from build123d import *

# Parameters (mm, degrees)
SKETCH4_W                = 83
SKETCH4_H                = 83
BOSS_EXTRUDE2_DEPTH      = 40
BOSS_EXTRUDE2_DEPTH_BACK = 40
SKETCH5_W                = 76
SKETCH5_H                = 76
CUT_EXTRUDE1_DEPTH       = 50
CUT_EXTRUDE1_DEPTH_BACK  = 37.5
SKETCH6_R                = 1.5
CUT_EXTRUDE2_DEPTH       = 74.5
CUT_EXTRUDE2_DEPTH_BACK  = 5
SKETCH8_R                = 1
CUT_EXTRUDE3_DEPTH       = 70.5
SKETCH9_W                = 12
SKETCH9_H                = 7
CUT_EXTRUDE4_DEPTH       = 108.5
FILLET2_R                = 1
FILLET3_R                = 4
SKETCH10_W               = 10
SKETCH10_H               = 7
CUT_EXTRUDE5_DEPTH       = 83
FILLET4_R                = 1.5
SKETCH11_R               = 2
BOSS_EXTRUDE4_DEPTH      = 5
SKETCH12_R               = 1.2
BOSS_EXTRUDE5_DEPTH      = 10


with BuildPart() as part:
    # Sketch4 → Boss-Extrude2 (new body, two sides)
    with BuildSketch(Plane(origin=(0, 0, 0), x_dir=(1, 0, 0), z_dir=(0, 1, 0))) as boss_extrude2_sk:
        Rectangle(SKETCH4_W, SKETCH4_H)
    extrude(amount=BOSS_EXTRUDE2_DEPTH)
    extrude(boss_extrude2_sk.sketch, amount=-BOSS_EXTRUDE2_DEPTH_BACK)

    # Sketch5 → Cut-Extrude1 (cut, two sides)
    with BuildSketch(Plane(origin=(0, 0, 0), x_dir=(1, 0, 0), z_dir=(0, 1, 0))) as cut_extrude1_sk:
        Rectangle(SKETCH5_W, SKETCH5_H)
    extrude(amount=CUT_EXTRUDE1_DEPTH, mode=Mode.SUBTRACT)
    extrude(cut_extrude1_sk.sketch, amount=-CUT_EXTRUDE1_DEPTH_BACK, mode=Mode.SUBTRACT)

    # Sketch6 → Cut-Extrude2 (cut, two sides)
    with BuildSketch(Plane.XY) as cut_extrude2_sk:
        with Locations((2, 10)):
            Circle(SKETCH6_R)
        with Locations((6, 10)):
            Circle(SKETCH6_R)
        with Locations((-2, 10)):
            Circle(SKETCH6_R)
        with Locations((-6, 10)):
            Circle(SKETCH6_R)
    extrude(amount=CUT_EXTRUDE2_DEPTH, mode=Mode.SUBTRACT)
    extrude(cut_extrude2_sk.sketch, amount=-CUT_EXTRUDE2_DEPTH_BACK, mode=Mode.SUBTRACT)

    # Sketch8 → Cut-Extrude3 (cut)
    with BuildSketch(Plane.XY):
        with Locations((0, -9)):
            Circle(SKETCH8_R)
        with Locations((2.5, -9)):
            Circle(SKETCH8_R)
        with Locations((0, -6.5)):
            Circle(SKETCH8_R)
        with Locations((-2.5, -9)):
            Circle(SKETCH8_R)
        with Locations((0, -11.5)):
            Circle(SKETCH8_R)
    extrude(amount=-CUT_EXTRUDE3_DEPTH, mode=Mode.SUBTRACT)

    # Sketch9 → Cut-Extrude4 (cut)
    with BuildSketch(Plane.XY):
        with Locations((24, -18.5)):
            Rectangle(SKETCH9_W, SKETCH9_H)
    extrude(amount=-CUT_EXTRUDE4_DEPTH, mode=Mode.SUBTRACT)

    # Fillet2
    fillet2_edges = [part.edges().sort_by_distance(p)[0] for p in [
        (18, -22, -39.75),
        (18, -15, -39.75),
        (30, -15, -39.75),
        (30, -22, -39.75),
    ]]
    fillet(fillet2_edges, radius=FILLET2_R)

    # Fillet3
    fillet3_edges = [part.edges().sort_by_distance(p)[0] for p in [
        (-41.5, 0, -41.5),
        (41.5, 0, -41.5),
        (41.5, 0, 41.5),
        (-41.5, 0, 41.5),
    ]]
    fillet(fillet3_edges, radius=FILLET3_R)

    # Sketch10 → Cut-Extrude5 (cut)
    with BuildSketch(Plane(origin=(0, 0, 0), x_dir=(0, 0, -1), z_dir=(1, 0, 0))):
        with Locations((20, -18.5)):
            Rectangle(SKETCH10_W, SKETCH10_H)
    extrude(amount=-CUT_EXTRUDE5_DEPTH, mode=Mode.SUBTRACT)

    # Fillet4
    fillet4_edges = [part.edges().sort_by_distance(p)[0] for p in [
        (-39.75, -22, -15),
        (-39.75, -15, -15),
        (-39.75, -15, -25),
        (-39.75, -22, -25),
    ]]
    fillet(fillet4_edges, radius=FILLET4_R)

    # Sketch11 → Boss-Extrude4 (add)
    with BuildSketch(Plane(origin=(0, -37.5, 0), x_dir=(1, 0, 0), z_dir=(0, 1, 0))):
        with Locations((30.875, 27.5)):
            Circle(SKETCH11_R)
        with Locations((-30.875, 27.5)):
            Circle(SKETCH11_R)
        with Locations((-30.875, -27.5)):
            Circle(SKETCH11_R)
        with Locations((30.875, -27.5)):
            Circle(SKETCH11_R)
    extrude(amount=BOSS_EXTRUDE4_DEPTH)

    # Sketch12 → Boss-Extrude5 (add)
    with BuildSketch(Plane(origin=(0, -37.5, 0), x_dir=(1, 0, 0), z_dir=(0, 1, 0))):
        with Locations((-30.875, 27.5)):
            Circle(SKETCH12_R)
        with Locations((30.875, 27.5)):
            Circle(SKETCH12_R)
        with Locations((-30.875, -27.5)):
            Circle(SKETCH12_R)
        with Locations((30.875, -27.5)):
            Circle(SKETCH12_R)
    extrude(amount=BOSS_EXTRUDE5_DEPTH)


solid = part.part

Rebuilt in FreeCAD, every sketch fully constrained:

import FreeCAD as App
import Part
import Sketcher

V = App.Vector
Q = App.Units.Quantity


def edges_at(feature, points):
    """Names of the edges that pass closest to the given points."""
    edges = feature.Shape.Edges
    near = lambda p: min(range(len(edges)), key=lambda i: edges[i].distToShape(Part.Vertex(*p))[0])
    return sorted({f"Edge{near(p) + 1}" for p in points})


def add_polygon(sketch, points):
    """Adds a closed chain of lines whose ends are joined by coincident constraints."""
    first, n = sketch.GeometryCount, len(points)
    for a, b in zip(points, points[1:] + points[:1]):
        sketch.addGeometry(Part.LineSegment(App.Vector(*a, 0), App.Vector(*b, 0)), False)
    for i in range(n):
        sketch.addConstraint(Sketcher.Constraint("Coincident", first + i, 2, first + (i + 1) % n, 1))

doc = App.newDocument("Part")
params = doc.addObject("Spreadsheet::Sheet", "Params")
for row, (alias, value) in enumerate([
    ("sketch1_width", "83 mm"),
    ("pad1_length", "40 mm"),
    ("pad1_length2", "40 mm"),
    ("sketch2_width", "76 mm"),
    ("pocket1_length", "50 mm"),
    ("pocket1_length2", "37.5 mm"),
    ("sketch3_diameter", "3 mm"),
    ("pocket2_length", "74.5 mm"),
    ("pocket2_length2", "5 mm"),
    ("sketch4_diameter", "2 mm"),
    ("pocket3_length", "70.5 mm"),
    ("sketch5_width", "12 mm"),
    ("sketch5_height", "7 mm"),
    ("pocket4_length", "108.5 mm"),
    ("fillet_radius", "1 mm"),
    ("fillet2_radius", "4 mm"),
    ("sketch6_width", "7 mm"),
    ("sketch6_height", "10 mm"),
    ("pocket5_length", "83 mm"),
    ("fillet3_radius", "1.5 mm"),
    ("sketch7_diameter", "4 mm"),
    ("pad2_length", "5 mm"),
    ("sketch8_diameter", "2.4 mm"),
    ("pad3_length", "10 mm"),
], start=1):
    params.set(f"A{row}", alias)
    params.set(f"B{row}", "=" + value)
    params.setAlias(f"B{row}", alias)

body = doc.addObject("PartDesign::Body", "Body")

# Sketch on XZ plane
sketch1 = doc.addObject("Sketcher::SketchObject", "Sketch")
body.addObject(sketch1)
sketch1.AttachmentSupport = (doc.XZ_Plane, [""])
sketch1.MapMode = "FlatFace"
add_polygon(sketch1, [(-41.5, -41.5), (-41.5, 41.5), (41.5, 41.5), (41.5, -41.5)])  # lines 0-3
sketch1.addConstraint([
    Sketcher.Constraint("Vertical", 0),
    Sketcher.Constraint("Horizontal", 1),
    Sketcher.Constraint("Vertical", 2),
    Sketcher.Constraint("Horizontal", 3),
    Sketcher.Constraint("Symmetric", 0, 2, 2, 2, -1, 1),
    Sketcher.Constraint("Equal", 3, 0),
    Sketcher.Constraint("DistanceX", 1, 1, 1, 2, Q("83 mm")),
])
sketch1.setExpression("Constraints[10]", "Params.sketch1_width")
pad1 = doc.addObject("PartDesign::Pad", "Pad")
body.addObject(pad1)
pad1.Profile = sketch1
pad1.Type = "TwoLengths"
pad1.setExpression("Length", "Params.pad1_length")
pad1.setExpression("Length2", "Params.pad1_length2")
pad1.Reversed = True

# Sketch on XZ plane
sketch2 = doc.addObject("Sketcher::SketchObject", "Sketch001")
body.addObject(sketch2)
sketch2.AttachmentSupport = (doc.XZ_Plane, [""])
sketch2.MapMode = "FlatFace"
add_polygon(sketch2, [(-38, -38), (-38, 38), (38, 38), (38, -38)])  # lines 0-3
sketch2.addConstraint([
    Sketcher.Constraint("Vertical", 0),
    Sketcher.Constraint("Horizontal", 1),
    Sketcher.Constraint("Vertical", 2),
    Sketcher.Constraint("Horizontal", 3),
    Sketcher.Constraint("Symmetric", 0, 2, 2, 2, -1, 1),
    Sketcher.Constraint("Equal", 3, 0),
    Sketcher.Constraint("DistanceX", 1, 1, 1, 2, Q("76 mm")),
])
sketch2.setExpression("Constraints[10]", "Params.sketch2_width")
pocket1 = doc.addObject("PartDesign::Pocket", "Pocket")
body.addObject(pocket1)
pocket1.Profile = sketch2
pocket1.Type = "TwoLengths"
pocket1.setExpression("Length", "Params.pocket1_length")
pocket1.setExpression("Length2", "Params.pocket1_length2")

# Sketch on XY plane
sketch3 = doc.addObject("Sketcher::SketchObject", "Sketch002")
body.addObject(sketch3)
sketch3.AttachmentSupport = (doc.XY_Plane, [""])
sketch3.MapMode = "FlatFace"
sketch3.addGeometry([
    Part.Circle(V(2, 10, 0), V(0, 0, 1), 1.5),
    Part.Circle(V(6, 10, 0), V(0, 0, 1), 1.5),
    Part.Circle(V(-2, 10, 0), V(0, 0, 1), 1.5),
    Part.Circle(V(-6, 10, 0), V(0, 0, 1), 1.5),
], False)
sketch3.addConstraint([
    Sketcher.Constraint("Equal", 0, 1),
    Sketcher.Constraint("Equal", 1, 2),
    Sketcher.Constraint("Equal", 2, 3),
    Sketcher.Constraint("Symmetric", 0, 3, 2, 3, -2),
    Sketcher.Constraint("Symmetric", 1, 3, 3, 3, -2),
    Sketcher.Constraint("Horizontal", 0, 3, 1, 3),
    Sketcher.Constraint("Diameter", 0, Q("3 mm")),
    Sketcher.Constraint("DistanceX", -1, 1, 0, 3, Q("2 mm")),
    Sketcher.Constraint("DistanceY", -1, 1, 0, 3, Q("10 mm")),
    Sketcher.Constraint("DistanceX", -1, 1, 1, 3, Q("6 mm")),
])
sketch3.setExpression("Constraints[6]", "Params.sketch3_diameter")
pocket2 = doc.addObject("PartDesign::Pocket", "Pocket001")
body.addObject(pocket2)
pocket2.Profile = sketch3
pocket2.Type = "TwoLengths"
pocket2.setExpression("Length", "Params.pocket2_length")
pocket2.setExpression("Length2", "Params.pocket2_length2")
pocket2.Reversed = True

# Sketch on XY plane
sketch4 = doc.addObject("Sketcher::SketchObject", "Sketch003")
body.addObject(sketch4)
sketch4.AttachmentSupport = (doc.XY_Plane, [""])
sketch4.MapMode = "FlatFace"
sketch4.addGeometry([
    Part.Circle(V(0, -9, 0), V(0, 0, 1), 1),  # 0
    Part.Circle(V(2.5, -9, 0), V(0, 0, 1), 1),  # 1
    Part.Circle(V(0, -6.5, 0), V(0, 0, 1), 1),  # 2
    Part.Circle(V(-2.5, -9, 0), V(0, 0, 1), 1),  # 3
    Part.Circle(V(0, -11.5, 0), V(0, 0, 1), 1),  # 4
], False)
sketch4.addConstraint([
    Sketcher.Constraint("Equal", 0, 1),
    Sketcher.Constraint("Equal", 1, 2),
    Sketcher.Constraint("Equal", 2, 3),
    Sketcher.Constraint("Equal", 3, 4),
    Sketcher.Constraint("Symmetric", 1, 3, 3, 3, -2),
    Sketcher.Constraint("PointOnObject", 0, 3, -2),
    Sketcher.Constraint("PointOnObject", 2, 3, -2),
    Sketcher.Constraint("PointOnObject", 4, 3, -2),
    Sketcher.Constraint("Horizontal", 0, 3, 1, 3),
    Sketcher.Constraint("Diameter", 0, Q("2 mm")),
    Sketcher.Constraint("DistanceY", 0, 3, -1, 1, Q("9 mm")),
    Sketcher.Constraint("DistanceX", 3, 3, 1, 3, Q("5 mm")),
    Sketcher.Constraint("DistanceY", 4, 3, 2, 3, Q("5 mm")),
    Sketcher.Constraint("DistanceY", 2, 3, -1, 1, Q("6.5 mm")),
])
sketch4.setExpression("Constraints[9]", "Params.sketch4_diameter")
pocket3 = doc.addObject("PartDesign::Pocket", "Pocket002")
body.addObject(pocket3)
pocket3.Profile = sketch4
pocket3.setExpression("Length", "Params.pocket3_length")

# Sketch on XY plane
sketch5 = doc.addObject("Sketcher::SketchObject", "Sketch004")
body.addObject(sketch5)
sketch5.AttachmentSupport = (doc.XY_Plane, [""])
sketch5.MapMode = "FlatFace"
add_polygon(sketch5, [(18, -15), (18, -22), (30, -22), (30, -15)])  # lines 0-3
sketch5.addConstraint([
    Sketcher.Constraint("Vertical", 0),
    Sketcher.Constraint("Horizontal", 1),
    Sketcher.Constraint("Vertical", 2),
    Sketcher.Constraint("Horizontal", 3),
    Sketcher.Constraint("DistanceX", 1, 1, 1, 2, Q("12 mm")),
    Sketcher.Constraint("DistanceY", 0, 2, 0, 1, Q("7 mm")),
    Sketcher.Constraint("DistanceX", -1, 1, 0, 2, Q("18 mm")),
    Sketcher.Constraint("DistanceY", 0, 2, -1, 1, Q("22 mm")),
])
sketch5.setExpression("Constraints[8]", "Params.sketch5_width")
sketch5.setExpression("Constraints[9]", "Params.sketch5_height")
pocket4 = doc.addObject("PartDesign::Pocket", "Pocket003")
body.addObject(pocket4)
pocket4.Profile = sketch5
pocket4.setExpression("Length", "Params.pocket4_length")
doc.recompute()

fillet = doc.addObject("PartDesign::Fillet", "Fillet")
body.addObject(fillet)
fillet.Base = (pocket4, edges_at(pocket4, [
    (18, -22, -39.75),
    (18, -15, -39.75),
    (30, -15, -39.75),
    (30, -22, -39.75),
]))
fillet.setExpression("Radius", "Params.fillet_radius")
doc.recompute()

fillet2 = doc.addObject("PartDesign::Fillet", "Fillet001")
body.addObject(fillet2)
fillet2.Base = (fillet, edges_at(fillet, [
    (-41.5, 0, -41.5),
    (41.5, 0, -41.5),
    (41.5, 0, 41.5),
    (-41.5, 0, 41.5),
]))
fillet2.setExpression("Radius", "Params.fillet2_radius")

# Sketch on YZ plane
sketch6 = doc.addObject("Sketcher::SketchObject", "Sketch005")
body.addObject(sketch6)
sketch6.AttachmentSupport = (doc.YZ_Plane, [""])
sketch6.MapMode = "FlatFace"
add_polygon(sketch6, [(-15, -15), (-22, -15), (-22, -25), (-15, -25)])  # lines 0-3
sketch6.addConstraint([
    Sketcher.Constraint("Horizontal", 0),
    Sketcher.Constraint("Vertical", 1),
    Sketcher.Constraint("Horizontal", 2),
    Sketcher.Constraint("Vertical", 3),
    Sketcher.Constraint("DistanceX", 0, 2, 0, 1, Q("7 mm")),
    Sketcher.Constraint("DistanceY", 1, 2, 1, 1, Q("10 mm")),
    Sketcher.Constraint("DistanceX", 0, 2, -1, 1, Q("22 mm")),
    Sketcher.Constraint("DistanceY", 0, 2, -1, 1, Q("15 mm")),
])
sketch6.setExpression("Constraints[8]", "Params.sketch6_width")
sketch6.setExpression("Constraints[9]", "Params.sketch6_height")
pocket5 = doc.addObject("PartDesign::Pocket", "Pocket004")
body.addObject(pocket5)
pocket5.Profile = sketch6
pocket5.setExpression("Length", "Params.pocket5_length")
doc.recompute()

fillet3 = doc.addObject("PartDesign::Fillet", "Fillet002")
body.addObject(fillet3)
fillet3.Base = (pocket5, edges_at(pocket5, [
    (-39.75, -22, -15),
    (-39.75, -15, -15),
    (-39.75, -15, -25),
    (-39.75, -22, -25),
]))
fillet3.setExpression("Radius", "Params.fillet3_radius")

# Sketch on XZ plane
sketch7 = doc.addObject("Sketcher::SketchObject", "Sketch006")
body.addObject(sketch7)
sketch7.AttachmentSupport = (doc.XZ_Plane, [""])
sketch7.MapMode = "FlatFace"
sketch7.AttachmentOffset = App.Placement(V(0, 0, 37.5), App.Rotation())
sketch7.addGeometry([
    Part.Circle(V(30.875, -27.5, 0), V(0, 0, 1), 2),
    Part.Circle(V(-30.875, -27.5, 0), V(0, 0, 1), 2),
    Part.Circle(V(-30.875, 27.5, 0), V(0, 0, 1), 2),
    Part.Circle(V(30.875, 27.5, 0), V(0, 0, 1), 2),
], False)
sketch7.addConstraint([
    Sketcher.Constraint("Equal", 0, 1),
    Sketcher.Constraint("Equal", 1, 2),
    Sketcher.Constraint("Equal", 2, 3),
    Sketcher.Constraint("Symmetric", 0, 3, 2, 3, -1, 1),
    Sketcher.Constraint("Symmetric", 1, 3, 3, 3, -1, 1),
    Sketcher.Constraint("Symmetric", 0, 3, 1, 3, -2),
    Sketcher.Constraint("Diameter", 0, Q("4 mm")),
    Sketcher.Constraint("DistanceY", 1, 3, 2, 3, Q("55 mm")),
    Sketcher.Constraint("DistanceX", 1, 3, 0, 3, Q("61.75 mm")),
])
sketch7.setExpression("Constraints[6]", "Params.sketch7_diameter")
pad2 = doc.addObject("PartDesign::Pad", "Pad001")
body.addObject(pad2)
pad2.Profile = sketch7
pad2.setExpression("Length", "Params.pad2_length")
pad2.Reversed = True

# Sketch on XZ plane
sketch8 = doc.addObject("Sketcher::SketchObject", "Sketch007")
body.addObject(sketch8)
sketch8.AttachmentSupport = (doc.XZ_Plane, [""])
sketch8.MapMode = "FlatFace"
sketch8.AttachmentOffset = App.Placement(V(0, 0, 37.5), App.Rotation())
sketch8.addGeometry([
    Part.Circle(V(-30.875, -27.5, 0), V(0, 0, 1), 1.2),
    Part.Circle(V(30.875, -27.5, 0), V(0, 0, 1), 1.2),
    Part.Circle(V(-30.875, 27.5, 0), V(0, 0, 1), 1.2),
    Part.Circle(V(30.875, 27.5, 0), V(0, 0, 1), 1.2),
], False)
sketch8.addConstraint([
    Sketcher.Constraint("Equal", 0, 1),
    Sketcher.Constraint("Equal", 1, 2),
    Sketcher.Constraint("Equal", 2, 3),
    Sketcher.Constraint("Symmetric", 1, 3, 2, 3, -1, 1),
    Sketcher.Constraint("Symmetric", 0, 3, 3, 3, -1, 1),
    Sketcher.Constraint("Symmetric", 0, 3, 1, 3, -2),
    Sketcher.Constraint("Diameter", 0, Q("2.4 mm")),
    Sketcher.Constraint("DistanceY", 0, 3, 2, 3, Q("55 mm")),
    Sketcher.Constraint("DistanceX", 0, 3, 1, 3, Q("61.75 mm")),
])
sketch8.setExpression("Constraints[6]", "Params.sketch8_diameter")
pad3 = doc.addObject("PartDesign::Pad", "Pad002")
body.addObject(pad3)
pad3.Profile = sketch8
pad3.setExpression("Length", "Params.pad3_length")
pad3.Reversed = True

doc.recompute()
